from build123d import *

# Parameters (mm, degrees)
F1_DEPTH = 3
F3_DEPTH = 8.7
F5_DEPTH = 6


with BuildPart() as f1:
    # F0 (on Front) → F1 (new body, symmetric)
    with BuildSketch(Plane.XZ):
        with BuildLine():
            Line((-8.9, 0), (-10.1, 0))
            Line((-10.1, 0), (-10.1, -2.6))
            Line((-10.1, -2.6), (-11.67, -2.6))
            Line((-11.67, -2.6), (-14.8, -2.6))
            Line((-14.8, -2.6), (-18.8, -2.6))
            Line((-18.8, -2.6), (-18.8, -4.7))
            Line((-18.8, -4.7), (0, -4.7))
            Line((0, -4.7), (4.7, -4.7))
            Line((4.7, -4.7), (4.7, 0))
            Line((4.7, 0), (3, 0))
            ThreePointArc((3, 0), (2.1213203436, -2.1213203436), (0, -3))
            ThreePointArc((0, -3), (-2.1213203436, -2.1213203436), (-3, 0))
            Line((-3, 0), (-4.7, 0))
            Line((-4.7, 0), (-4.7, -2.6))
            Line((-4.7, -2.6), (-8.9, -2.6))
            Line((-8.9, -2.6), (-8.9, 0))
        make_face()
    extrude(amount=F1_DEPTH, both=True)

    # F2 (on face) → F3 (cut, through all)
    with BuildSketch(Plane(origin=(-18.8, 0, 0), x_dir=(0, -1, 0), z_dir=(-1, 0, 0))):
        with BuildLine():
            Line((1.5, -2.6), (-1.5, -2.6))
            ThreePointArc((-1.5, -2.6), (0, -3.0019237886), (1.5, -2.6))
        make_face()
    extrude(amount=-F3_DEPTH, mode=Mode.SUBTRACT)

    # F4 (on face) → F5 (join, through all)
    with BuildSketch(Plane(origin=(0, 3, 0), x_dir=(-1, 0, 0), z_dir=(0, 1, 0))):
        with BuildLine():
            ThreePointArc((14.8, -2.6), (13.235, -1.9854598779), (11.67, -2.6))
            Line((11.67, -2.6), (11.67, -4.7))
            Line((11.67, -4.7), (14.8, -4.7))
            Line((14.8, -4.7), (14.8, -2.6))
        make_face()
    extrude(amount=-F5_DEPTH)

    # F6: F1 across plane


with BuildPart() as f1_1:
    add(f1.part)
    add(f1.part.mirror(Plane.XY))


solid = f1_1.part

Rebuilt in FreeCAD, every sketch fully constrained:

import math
import FreeCAD as App
import Part
import Sketcher

V = App.Vector
Q = App.Units.Quantity

doc = App.newDocument("Part")
params = doc.addObject("Spreadsheet::Sheet", "Params")
for row, (alias, value) in enumerate([
    ("sketch1_radius", "3 mm"),
    ("sketch1_width", "1.2 mm"),
    ("sketch1_width2", "8.7 mm"),
    ("sketch1_width3", "23.5 mm"),
    ("sketch1_width4", "1.7 mm"),
    ("pad1_length", "6 mm"),
    ("sketch2_radius", "3 mm"),
    ("sketch2_width", "3 mm"),
    ("pocket1_length", "8.7 mm"),
    ("sketch3_radius", "2.3 mm"),
    ("sketch3_height", "2.1 mm"),
    ("sketch3_width", "3.13 mm"),
], start=1):
    params.set(f"A{row}", alias)
    params.set(f"B{row}", "=" + value)
    params.setAlias(f"B{row}", alias)

body = doc.addObject("PartDesign::Body", "Body")

sketch1 = body.newObject("Sketcher::SketchObject", "Sketch")
sketch1.AttachmentSupport = (doc.getObject("XZ_Plane"), [""])
sketch1.MapMode = "FlatFace"
sketch1.addGeometry(Part.LineSegment(V(-8.9, 0, 0), V(-10.1, 0, 0)), False)
sketch1.addGeometry(Part.LineSegment(V(-10.1, 0, 0), V(-10.1, -2.6, 0)), False)
sketch1.addGeometry(Part.LineSegment(V(-10.1, -2.6, 0), V(-18.8, -2.6, 0)), False)
sketch1.addGeometry(Part.LineSegment(V(-18.8, -2.6, 0), V(-18.8, -4.7, 0)), False)
sketch1.addGeometry(Part.LineSegment(V(-18.8, -4.7, 0), V(4.7, -4.7, 0)), False)
sketch1.addGeometry(Part.LineSegment(V(4.7, -4.7, 0), V(4.7, 0, 0)), False)
sketch1.addGeometry(Part.LineSegment(V(4.7, 0, 0), V(3, 0, 0)), False)
sketch1.addGeometry(Part.ArcOfCircle(Part.Circle(V(0, 0, 0), V(0, 0, 1), 3), math.radians(-90), math.radians(0)), False)
sketch1.addGeometry(Part.ArcOfCircle(Part.Circle(V(0, 0, 0), V(0, 0, 1), 3), math.radians(180), math.radians(270)), False)
sketch1.addGeometry(Part.LineSegment(V(-3, 0, 0), V(-4.7, 0, 0)), False)
sketch1.addGeometry(Part.LineSegment(V(-4.7, 0, 0), V(-4.7, -2.6, 0)), False)
sketch1.addGeometry(Part.LineSegment(V(-4.7, -2.6, 0), V(-8.9, -2.6, 0)), False)
sketch1.addGeometry(Part.LineSegment(V(-8.9, -2.6, 0), V(-8.9, 0, 0)), False)
sketch1.addConstraint(Sketcher.Constraint("Coincident", 0, 2, 1, 1))
sketch1.addConstraint(Sketcher.Constraint("Coincident", 1, 2, 2, 1))
sketch1.addConstraint(Sketcher.Constraint("Coincident", 2, 2, 3, 1))
sketch1.addConstraint(Sketcher.Constraint("Coincident", 3, 2, 4, 1))
sketch1.addConstraint(Sketcher.Constraint("Coincident", 4, 2, 5, 1))
sketch1.addConstraint(Sketcher.Constraint("Coincident", 5, 2, 6, 1))
sketch1.addConstraint(Sketcher.Constraint("Coincident", 6, 2, 7, 2))
sketch1.addConstraint(Sketcher.Constraint("Tangent", 7, 1, 8, 2))
sketch1.addConstraint(Sketcher.Constraint("Coincident", 8, 1, 9, 1))
sketch1.addConstraint(Sketcher.Constraint("Coincident", 9, 2, 10, 1))
sketch1.addConstraint(Sketcher.Constraint("Coincident", 10, 2, 11, 1))
sketch1.addConstraint(Sketcher.Constraint("Coincident", 11, 2, 12, 1))
sketch1.addConstraint(Sketcher.Constraint("Coincident", 12, 2, 0, 1))
sketch1.addConstraint(Sketcher.Constraint("Horizontal", 0))
sketch1.addConstraint(Sketcher.Constraint("Vertical", 1))
sketch1.addConstraint(Sketcher.Constraint("Horizontal", 2))
sketch1.addConstraint(Sketcher.Constraint("Vertical", 3))
sketch1.addConstraint(Sketcher.Constraint("Horizontal", 4))
sketch1.addConstraint(Sketcher.Constraint("Vertical", 5))
sketch1.addConstraint(Sketcher.Constraint("Horizontal", 6))
sketch1.addConstraint(Sketcher.Constraint("Horizontal", 9))
sketch1.addConstraint(Sketcher.Constraint("Vertical", 10))
sketch1.addConstraint(Sketcher.Constraint("Horizontal", 11))
sketch1.addConstraint(Sketcher.Constraint("Vertical", 12))
sketch1.addConstraint(Sketcher.Constraint("Coincident", 7, 3, -1, 1))
sketch1.addConstraint(Sketcher.Constraint("Equal", 7, 8))
sketch1.addConstraint(Sketcher.Constraint("Symmetric", 5, 2, 9, 2, -1, 1))
sketch1.addConstraint(Sketcher.Constraint("PointOnObject", 0, 2, -1))
sketch1.addConstraint(Sketcher.Constraint("PointOnObject", 5, 2, -1))
sketch1.addConstraint(Sketcher.Constraint("PointOnObject", 7, 1, -2))
sketch1.addConstraint(Sketcher.Constraint("Horizontal", 2, 2, 10, 2))
sketch1.addConstraint(Sketcher.Constraint("Radius", 7, Q("3 mm")))
sketch1.addConstraint(Sketcher.Constraint("DistanceX", 0, 2, 0, 1, Q("1.2 mm")))
sketch1.addConstraint(Sketcher.Constraint("DistanceX", 2, 2, 2, 1, Q("8.7 mm")))
sketch1.addConstraint(Sketcher.Constraint("DistanceX", 4, 1, 4, 2, Q("23.5 mm")))
sketch1.addConstraint(Sketcher.Constraint("DistanceX", 6, 2, 6, 1, Q("1.7 mm")))
sketch1.addConstraint(Sketcher.Constraint("DistanceY", 1, 2, 1, 1, Q("2.6 mm")))
sketch1.addConstraint(Sketcher.Constraint("DistanceY", 3, 2, 3, 1, Q("2.1 mm")))
sketch1.setExpression("Constraints[31]", "Params.sketch1_radius")
sketch1.setExpression("Constraints[32]", "Params.sketch1_width")
sketch1.setExpression("Constraints[33]", "Params.sketch1_width2")
sketch1.setExpression("Constraints[34]", "Params.sketch1_width3")
sketch1.setExpression("Constraints[35]", "Params.sketch1_width4")
pad1 = body.newObject("PartDesign::Pad", "Pad")
pad1.Profile = sketch1
pad1.setExpression("Length", "Params.pad1_length")
pad1.Midplane = True

sketch2 = body.newObject("Sketcher::SketchObject", "Sketch001")
sketch2.AttachmentSupport = (doc.getObject("YZ_Plane"), [""])
sketch2.MapMode = "FlatFace"
sketch2.AttachmentOffset = App.Placement(V(0, 0, -18.8), App.Rotation())
sketch2.addGeometry(Part.LineSegment(V(-1.5, -2.6, 0), V(1.5, -2.6, 0)), False)
sketch2.addGeometry(Part.ArcOfCircle(Part.Circle(V(0, 0, 0), V(0, 0, 1), 3), math.radians(-120), math.radians(-60)), False)
sketch2.addConstraint(Sketcher.Constraint("Coincident", 0, 1, 1, 1))
sketch2.addConstraint(Sketcher.Constraint("Coincident", 1, 2, 0, 2))
sketch2.addConstraint(Sketcher.Constraint("Horizontal", 0))
sketch2.addConstraint(Sketcher.Constraint("PointOnObject", 1, 3, -2))
sketch2.addConstraint(Sketcher.Constraint("Radius", 1, Q("3 mm")))
sketch2.addConstraint(Sketcher.Constraint("DistanceX", 0, 1, 0, 2, Q("3 mm")))
sketch2.addConstraint(Sketcher.Constraint("DistanceY", 0, 1, -1, 1, Q("2.6 mm")))
sketch2.setExpression("Constraints[4]", "Params.sketch2_radius")
sketch2.setExpression("Constraints[5]", "Params.sketch2_width")
pocket1 = body.newObject("PartDesign::Pocket", "Pocket")
pocket1.Profile = sketch2
pocket1.setExpression("Length", "Params.pocket1_length")
pocket1.Reversed = True

sketch3 = body.newObject("Sketcher::SketchObject", "Sketch002")
sketch3.AttachmentSupport = (doc.getObject("XZ_Plane"), [""])
sketch3.MapMode = "FlatFace"
sketch3.AttachmentOffset = App.Placement(V(0, 0, -3), App.Rotation())
sketch3.addGeometry(Part.ArcOfCircle(Part.Circle(V(-13.2, -4.3, 0), V(0, 0, 1), 2.3), math.radians(47), math.radians(133)), False)
sketch3.addGeometry(Part.LineSegment(V(-11.7, -2.6, 0), V(-11.7, -4.7, 0)), False)
sketch3.addGeometry(Part.LineSegment(V(-11.7, -4.7, 0), V(-14.8, -4.7, 0)), False)
sketch3.addGeometry(Part.LineSegment(V(-14.8, -4.7, 0), V(-14.8, -2.6, 0)), False)
sketch3.addConstraint(Sketcher.Constraint("Coincident", 0, 1, 1, 1))
sketch3.addConstraint(Sketcher.Constraint("Coincident", 1, 2, 2, 1))
sketch3.addConstraint(Sketcher.Constraint("Coincident", 2, 2, 3, 1))
sketch3.addConstraint(Sketcher.Constraint("Coincident", 3, 2, 0, 2))
sketch3.addConstraint(Sketcher.Constraint("Vertical", 1))
sketch3.addConstraint(Sketcher.Constraint("Horizontal", 2))
sketch3.addConstraint(Sketcher.Constraint("Vertical", 3))
sketch3.addConstraint(Sketcher.Constraint("Horizontal", 0, 1, 3, 2))
sketch3.addConstraint(Sketcher.Constraint("Radius", 0, Q("2.3 mm")))
sketch3.addConstraint(Sketcher.Constraint("DistanceY", 1, 2, 1, 1, Q("2.1 mm")))
sketch3.addConstraint(Sketcher.Constraint("DistanceX", 2, 2, 2, 1, Q("3.13 mm")))
sketch3.addConstraint(Sketcher.Constraint("DistanceY", 0, 1, -1, 1, Q("2.6 mm")))
sketch3.addConstraint(Sketcher.Constraint("DistanceX", 2, 2, -1, 1, Q("14.8 mm")))
sketch3.setExpression("Constraints[8]", "Params.sketch3_radius")
sketch3.setExpression("Constraints[9]", "Params.sketch3_height")
sketch3.setExpression("Constraints[10]", "Params.sketch3_width")
pad2 = body.newObject("PartDesign::Pad", "Pad001")
pad2.Profile = sketch3
pad2.Type = "UpToLast"
body2 = doc.addObject("PartDesign::Body", "Body001")
doc.recompute()

body2.BaseFeature = body
doc.recompute()

mirroring = doc.addObject("Part::Mirroring", "Mirroring")
mirroring.Source = body
mirroring.Base = V(0, 0, 0)
mirroring.Normal = V(0, 0, 1)
body3 = doc.addObject("PartDesign::Body", "Body002")
body3.BaseFeature = mirroring
boolean = body2.newObject("PartDesign::Boolean", "Boolean")
boolean.Type = "Fuse"
boolean.addObjects([body3])
doc.recompute()
mirroring.Visibility = False

doc.recompute()
